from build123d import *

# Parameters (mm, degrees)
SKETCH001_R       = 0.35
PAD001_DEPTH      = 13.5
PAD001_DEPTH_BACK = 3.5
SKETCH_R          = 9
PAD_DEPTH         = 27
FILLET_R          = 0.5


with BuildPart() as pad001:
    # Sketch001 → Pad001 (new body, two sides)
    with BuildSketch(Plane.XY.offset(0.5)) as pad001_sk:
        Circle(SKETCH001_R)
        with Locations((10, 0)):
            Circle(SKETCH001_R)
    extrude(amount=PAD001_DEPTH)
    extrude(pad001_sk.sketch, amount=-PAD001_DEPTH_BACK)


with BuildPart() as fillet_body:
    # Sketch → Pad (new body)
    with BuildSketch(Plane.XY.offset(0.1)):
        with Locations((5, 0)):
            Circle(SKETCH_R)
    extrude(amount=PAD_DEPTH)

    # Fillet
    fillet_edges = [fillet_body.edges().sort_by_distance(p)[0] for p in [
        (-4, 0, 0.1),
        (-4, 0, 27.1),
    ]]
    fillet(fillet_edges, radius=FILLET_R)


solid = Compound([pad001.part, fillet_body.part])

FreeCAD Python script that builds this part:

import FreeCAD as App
import Part
import Sketcher
from FreeCAD import Vector


def edges_at(feature, points):
    """Names of the edges that pass closest to the given points."""
    edges = feature.Shape.Edges
    near = lambda p: min(range(len(edges)), key=lambda i: edges[i].distToShape(Part.Vertex(*p))[0])
    return sorted({f"Edge{near(p) + 1}" for p in points})

doc = App.newDocument("Part")
params = doc.addObject("Spreadsheet::Sheet", "Params")
for row, (alias, value) in enumerate([
    ("sketch1_diameter", "0.7 mm"),
    ("pad1_length", "13.5 mm"),
    ("pad1_length2", "3.5 mm"),
    ("sketch2_diameter", "18 mm"),
    ("pad2_length", "27 mm"),
    ("fillet_radius", "0.5 mm"),
], start=1):
    params.set(f"A{row}", alias)
    params.set(f"B{row}", "=" + value)
    params.setAlias(f"B{row}", alias)

body = doc.addObject("PartDesign::Body", "Body")
body.AllowCompound = True

sketch1 = doc.addObject("Sketcher::SketchObject", "Sketch")
body.addObject(sketch1)
sketch1.AttachmentSupport = (doc.XY_Plane, [""])
sketch1.MapMode = "FlatFace"
sketch1.AttachmentOffset = App.Placement(Vector(0, 0, 0.5), App.Rotation())
sketch1.addGeometry([
    Part.Circle(Vector(0, 0, 0), Vector(0, 0, 1), 0.35),
    Part.Circle(Vector(10, 0, 0), Vector(0, 0, 1), 0.35),
], False)
sketch1.addConstraint([
    Sketcher.Constraint("Coincident", 0, 3, -1, 1),
    Sketcher.Constraint("Equal", 0, 1),
    Sketcher.Constraint("PointOnObject", 1, 3, -1),
    Sketcher.Constraint("Diameter", 0, 0.7),
    Sketcher.Constraint("DistanceX", -1, 1, 1, 3, 10.0),
])
sketch1.setExpression("Constraints[3]", "Params.sketch1_diameter")
pad1 = doc.addObject("PartDesign::Pad", "Pad")
body.addObject(pad1)
pad1.Profile = sketch1
pad1.Type = "TwoLengths"
pad1.setExpression("Length", "Params.pad1_length")
pad1.setExpression("Length2", "Params.pad1_length2")
body2 = doc.addObject("PartDesign::Body", "Body001")

sketch2 = doc.addObject("Sketcher::SketchObject", "Sketch001")
body2.addObject(sketch2)
sketch2.AttachmentSupport = (doc.getObject("XY_Plane001"), [""])
sketch2.MapMode = "FlatFace"
sketch2.AttachmentOffset = App.Placement(Vector(0, 0, 0.1), App.Rotation())
sketch2.addGeometry(Part.Circle(Vector(5, 0, 0), Vector(0, 0, 1), 9), False)
sketch2.addConstraint([
    Sketcher.Constraint("PointOnObject", 0, 3, -1),
    Sketcher.Constraint("Diameter", 0, 18.0),
    Sketcher.Constraint("DistanceX", -1, 1, 0, 3, 5.0),
])
sketch2.setExpression("Constraints[1]", "Params.sketch2_diameter")
pad2 = doc.addObject("PartDesign::Pad", "Pad001")
body2.addObject(pad2)
pad2.Profile = sketch2
pad2.setExpression("Length", "Params.pad2_length")
doc.recompute()

fillet = doc.addObject("PartDesign::Fillet", "Fillet")
body2.addObject(fillet)
fillet.Base = (pad2, edges_at(pad2, [(-4, 0, 0.1), (-4, 0, 27.1)]))
fillet.setExpression("Radius", "Params.fillet_radius")

doc.recompute()
